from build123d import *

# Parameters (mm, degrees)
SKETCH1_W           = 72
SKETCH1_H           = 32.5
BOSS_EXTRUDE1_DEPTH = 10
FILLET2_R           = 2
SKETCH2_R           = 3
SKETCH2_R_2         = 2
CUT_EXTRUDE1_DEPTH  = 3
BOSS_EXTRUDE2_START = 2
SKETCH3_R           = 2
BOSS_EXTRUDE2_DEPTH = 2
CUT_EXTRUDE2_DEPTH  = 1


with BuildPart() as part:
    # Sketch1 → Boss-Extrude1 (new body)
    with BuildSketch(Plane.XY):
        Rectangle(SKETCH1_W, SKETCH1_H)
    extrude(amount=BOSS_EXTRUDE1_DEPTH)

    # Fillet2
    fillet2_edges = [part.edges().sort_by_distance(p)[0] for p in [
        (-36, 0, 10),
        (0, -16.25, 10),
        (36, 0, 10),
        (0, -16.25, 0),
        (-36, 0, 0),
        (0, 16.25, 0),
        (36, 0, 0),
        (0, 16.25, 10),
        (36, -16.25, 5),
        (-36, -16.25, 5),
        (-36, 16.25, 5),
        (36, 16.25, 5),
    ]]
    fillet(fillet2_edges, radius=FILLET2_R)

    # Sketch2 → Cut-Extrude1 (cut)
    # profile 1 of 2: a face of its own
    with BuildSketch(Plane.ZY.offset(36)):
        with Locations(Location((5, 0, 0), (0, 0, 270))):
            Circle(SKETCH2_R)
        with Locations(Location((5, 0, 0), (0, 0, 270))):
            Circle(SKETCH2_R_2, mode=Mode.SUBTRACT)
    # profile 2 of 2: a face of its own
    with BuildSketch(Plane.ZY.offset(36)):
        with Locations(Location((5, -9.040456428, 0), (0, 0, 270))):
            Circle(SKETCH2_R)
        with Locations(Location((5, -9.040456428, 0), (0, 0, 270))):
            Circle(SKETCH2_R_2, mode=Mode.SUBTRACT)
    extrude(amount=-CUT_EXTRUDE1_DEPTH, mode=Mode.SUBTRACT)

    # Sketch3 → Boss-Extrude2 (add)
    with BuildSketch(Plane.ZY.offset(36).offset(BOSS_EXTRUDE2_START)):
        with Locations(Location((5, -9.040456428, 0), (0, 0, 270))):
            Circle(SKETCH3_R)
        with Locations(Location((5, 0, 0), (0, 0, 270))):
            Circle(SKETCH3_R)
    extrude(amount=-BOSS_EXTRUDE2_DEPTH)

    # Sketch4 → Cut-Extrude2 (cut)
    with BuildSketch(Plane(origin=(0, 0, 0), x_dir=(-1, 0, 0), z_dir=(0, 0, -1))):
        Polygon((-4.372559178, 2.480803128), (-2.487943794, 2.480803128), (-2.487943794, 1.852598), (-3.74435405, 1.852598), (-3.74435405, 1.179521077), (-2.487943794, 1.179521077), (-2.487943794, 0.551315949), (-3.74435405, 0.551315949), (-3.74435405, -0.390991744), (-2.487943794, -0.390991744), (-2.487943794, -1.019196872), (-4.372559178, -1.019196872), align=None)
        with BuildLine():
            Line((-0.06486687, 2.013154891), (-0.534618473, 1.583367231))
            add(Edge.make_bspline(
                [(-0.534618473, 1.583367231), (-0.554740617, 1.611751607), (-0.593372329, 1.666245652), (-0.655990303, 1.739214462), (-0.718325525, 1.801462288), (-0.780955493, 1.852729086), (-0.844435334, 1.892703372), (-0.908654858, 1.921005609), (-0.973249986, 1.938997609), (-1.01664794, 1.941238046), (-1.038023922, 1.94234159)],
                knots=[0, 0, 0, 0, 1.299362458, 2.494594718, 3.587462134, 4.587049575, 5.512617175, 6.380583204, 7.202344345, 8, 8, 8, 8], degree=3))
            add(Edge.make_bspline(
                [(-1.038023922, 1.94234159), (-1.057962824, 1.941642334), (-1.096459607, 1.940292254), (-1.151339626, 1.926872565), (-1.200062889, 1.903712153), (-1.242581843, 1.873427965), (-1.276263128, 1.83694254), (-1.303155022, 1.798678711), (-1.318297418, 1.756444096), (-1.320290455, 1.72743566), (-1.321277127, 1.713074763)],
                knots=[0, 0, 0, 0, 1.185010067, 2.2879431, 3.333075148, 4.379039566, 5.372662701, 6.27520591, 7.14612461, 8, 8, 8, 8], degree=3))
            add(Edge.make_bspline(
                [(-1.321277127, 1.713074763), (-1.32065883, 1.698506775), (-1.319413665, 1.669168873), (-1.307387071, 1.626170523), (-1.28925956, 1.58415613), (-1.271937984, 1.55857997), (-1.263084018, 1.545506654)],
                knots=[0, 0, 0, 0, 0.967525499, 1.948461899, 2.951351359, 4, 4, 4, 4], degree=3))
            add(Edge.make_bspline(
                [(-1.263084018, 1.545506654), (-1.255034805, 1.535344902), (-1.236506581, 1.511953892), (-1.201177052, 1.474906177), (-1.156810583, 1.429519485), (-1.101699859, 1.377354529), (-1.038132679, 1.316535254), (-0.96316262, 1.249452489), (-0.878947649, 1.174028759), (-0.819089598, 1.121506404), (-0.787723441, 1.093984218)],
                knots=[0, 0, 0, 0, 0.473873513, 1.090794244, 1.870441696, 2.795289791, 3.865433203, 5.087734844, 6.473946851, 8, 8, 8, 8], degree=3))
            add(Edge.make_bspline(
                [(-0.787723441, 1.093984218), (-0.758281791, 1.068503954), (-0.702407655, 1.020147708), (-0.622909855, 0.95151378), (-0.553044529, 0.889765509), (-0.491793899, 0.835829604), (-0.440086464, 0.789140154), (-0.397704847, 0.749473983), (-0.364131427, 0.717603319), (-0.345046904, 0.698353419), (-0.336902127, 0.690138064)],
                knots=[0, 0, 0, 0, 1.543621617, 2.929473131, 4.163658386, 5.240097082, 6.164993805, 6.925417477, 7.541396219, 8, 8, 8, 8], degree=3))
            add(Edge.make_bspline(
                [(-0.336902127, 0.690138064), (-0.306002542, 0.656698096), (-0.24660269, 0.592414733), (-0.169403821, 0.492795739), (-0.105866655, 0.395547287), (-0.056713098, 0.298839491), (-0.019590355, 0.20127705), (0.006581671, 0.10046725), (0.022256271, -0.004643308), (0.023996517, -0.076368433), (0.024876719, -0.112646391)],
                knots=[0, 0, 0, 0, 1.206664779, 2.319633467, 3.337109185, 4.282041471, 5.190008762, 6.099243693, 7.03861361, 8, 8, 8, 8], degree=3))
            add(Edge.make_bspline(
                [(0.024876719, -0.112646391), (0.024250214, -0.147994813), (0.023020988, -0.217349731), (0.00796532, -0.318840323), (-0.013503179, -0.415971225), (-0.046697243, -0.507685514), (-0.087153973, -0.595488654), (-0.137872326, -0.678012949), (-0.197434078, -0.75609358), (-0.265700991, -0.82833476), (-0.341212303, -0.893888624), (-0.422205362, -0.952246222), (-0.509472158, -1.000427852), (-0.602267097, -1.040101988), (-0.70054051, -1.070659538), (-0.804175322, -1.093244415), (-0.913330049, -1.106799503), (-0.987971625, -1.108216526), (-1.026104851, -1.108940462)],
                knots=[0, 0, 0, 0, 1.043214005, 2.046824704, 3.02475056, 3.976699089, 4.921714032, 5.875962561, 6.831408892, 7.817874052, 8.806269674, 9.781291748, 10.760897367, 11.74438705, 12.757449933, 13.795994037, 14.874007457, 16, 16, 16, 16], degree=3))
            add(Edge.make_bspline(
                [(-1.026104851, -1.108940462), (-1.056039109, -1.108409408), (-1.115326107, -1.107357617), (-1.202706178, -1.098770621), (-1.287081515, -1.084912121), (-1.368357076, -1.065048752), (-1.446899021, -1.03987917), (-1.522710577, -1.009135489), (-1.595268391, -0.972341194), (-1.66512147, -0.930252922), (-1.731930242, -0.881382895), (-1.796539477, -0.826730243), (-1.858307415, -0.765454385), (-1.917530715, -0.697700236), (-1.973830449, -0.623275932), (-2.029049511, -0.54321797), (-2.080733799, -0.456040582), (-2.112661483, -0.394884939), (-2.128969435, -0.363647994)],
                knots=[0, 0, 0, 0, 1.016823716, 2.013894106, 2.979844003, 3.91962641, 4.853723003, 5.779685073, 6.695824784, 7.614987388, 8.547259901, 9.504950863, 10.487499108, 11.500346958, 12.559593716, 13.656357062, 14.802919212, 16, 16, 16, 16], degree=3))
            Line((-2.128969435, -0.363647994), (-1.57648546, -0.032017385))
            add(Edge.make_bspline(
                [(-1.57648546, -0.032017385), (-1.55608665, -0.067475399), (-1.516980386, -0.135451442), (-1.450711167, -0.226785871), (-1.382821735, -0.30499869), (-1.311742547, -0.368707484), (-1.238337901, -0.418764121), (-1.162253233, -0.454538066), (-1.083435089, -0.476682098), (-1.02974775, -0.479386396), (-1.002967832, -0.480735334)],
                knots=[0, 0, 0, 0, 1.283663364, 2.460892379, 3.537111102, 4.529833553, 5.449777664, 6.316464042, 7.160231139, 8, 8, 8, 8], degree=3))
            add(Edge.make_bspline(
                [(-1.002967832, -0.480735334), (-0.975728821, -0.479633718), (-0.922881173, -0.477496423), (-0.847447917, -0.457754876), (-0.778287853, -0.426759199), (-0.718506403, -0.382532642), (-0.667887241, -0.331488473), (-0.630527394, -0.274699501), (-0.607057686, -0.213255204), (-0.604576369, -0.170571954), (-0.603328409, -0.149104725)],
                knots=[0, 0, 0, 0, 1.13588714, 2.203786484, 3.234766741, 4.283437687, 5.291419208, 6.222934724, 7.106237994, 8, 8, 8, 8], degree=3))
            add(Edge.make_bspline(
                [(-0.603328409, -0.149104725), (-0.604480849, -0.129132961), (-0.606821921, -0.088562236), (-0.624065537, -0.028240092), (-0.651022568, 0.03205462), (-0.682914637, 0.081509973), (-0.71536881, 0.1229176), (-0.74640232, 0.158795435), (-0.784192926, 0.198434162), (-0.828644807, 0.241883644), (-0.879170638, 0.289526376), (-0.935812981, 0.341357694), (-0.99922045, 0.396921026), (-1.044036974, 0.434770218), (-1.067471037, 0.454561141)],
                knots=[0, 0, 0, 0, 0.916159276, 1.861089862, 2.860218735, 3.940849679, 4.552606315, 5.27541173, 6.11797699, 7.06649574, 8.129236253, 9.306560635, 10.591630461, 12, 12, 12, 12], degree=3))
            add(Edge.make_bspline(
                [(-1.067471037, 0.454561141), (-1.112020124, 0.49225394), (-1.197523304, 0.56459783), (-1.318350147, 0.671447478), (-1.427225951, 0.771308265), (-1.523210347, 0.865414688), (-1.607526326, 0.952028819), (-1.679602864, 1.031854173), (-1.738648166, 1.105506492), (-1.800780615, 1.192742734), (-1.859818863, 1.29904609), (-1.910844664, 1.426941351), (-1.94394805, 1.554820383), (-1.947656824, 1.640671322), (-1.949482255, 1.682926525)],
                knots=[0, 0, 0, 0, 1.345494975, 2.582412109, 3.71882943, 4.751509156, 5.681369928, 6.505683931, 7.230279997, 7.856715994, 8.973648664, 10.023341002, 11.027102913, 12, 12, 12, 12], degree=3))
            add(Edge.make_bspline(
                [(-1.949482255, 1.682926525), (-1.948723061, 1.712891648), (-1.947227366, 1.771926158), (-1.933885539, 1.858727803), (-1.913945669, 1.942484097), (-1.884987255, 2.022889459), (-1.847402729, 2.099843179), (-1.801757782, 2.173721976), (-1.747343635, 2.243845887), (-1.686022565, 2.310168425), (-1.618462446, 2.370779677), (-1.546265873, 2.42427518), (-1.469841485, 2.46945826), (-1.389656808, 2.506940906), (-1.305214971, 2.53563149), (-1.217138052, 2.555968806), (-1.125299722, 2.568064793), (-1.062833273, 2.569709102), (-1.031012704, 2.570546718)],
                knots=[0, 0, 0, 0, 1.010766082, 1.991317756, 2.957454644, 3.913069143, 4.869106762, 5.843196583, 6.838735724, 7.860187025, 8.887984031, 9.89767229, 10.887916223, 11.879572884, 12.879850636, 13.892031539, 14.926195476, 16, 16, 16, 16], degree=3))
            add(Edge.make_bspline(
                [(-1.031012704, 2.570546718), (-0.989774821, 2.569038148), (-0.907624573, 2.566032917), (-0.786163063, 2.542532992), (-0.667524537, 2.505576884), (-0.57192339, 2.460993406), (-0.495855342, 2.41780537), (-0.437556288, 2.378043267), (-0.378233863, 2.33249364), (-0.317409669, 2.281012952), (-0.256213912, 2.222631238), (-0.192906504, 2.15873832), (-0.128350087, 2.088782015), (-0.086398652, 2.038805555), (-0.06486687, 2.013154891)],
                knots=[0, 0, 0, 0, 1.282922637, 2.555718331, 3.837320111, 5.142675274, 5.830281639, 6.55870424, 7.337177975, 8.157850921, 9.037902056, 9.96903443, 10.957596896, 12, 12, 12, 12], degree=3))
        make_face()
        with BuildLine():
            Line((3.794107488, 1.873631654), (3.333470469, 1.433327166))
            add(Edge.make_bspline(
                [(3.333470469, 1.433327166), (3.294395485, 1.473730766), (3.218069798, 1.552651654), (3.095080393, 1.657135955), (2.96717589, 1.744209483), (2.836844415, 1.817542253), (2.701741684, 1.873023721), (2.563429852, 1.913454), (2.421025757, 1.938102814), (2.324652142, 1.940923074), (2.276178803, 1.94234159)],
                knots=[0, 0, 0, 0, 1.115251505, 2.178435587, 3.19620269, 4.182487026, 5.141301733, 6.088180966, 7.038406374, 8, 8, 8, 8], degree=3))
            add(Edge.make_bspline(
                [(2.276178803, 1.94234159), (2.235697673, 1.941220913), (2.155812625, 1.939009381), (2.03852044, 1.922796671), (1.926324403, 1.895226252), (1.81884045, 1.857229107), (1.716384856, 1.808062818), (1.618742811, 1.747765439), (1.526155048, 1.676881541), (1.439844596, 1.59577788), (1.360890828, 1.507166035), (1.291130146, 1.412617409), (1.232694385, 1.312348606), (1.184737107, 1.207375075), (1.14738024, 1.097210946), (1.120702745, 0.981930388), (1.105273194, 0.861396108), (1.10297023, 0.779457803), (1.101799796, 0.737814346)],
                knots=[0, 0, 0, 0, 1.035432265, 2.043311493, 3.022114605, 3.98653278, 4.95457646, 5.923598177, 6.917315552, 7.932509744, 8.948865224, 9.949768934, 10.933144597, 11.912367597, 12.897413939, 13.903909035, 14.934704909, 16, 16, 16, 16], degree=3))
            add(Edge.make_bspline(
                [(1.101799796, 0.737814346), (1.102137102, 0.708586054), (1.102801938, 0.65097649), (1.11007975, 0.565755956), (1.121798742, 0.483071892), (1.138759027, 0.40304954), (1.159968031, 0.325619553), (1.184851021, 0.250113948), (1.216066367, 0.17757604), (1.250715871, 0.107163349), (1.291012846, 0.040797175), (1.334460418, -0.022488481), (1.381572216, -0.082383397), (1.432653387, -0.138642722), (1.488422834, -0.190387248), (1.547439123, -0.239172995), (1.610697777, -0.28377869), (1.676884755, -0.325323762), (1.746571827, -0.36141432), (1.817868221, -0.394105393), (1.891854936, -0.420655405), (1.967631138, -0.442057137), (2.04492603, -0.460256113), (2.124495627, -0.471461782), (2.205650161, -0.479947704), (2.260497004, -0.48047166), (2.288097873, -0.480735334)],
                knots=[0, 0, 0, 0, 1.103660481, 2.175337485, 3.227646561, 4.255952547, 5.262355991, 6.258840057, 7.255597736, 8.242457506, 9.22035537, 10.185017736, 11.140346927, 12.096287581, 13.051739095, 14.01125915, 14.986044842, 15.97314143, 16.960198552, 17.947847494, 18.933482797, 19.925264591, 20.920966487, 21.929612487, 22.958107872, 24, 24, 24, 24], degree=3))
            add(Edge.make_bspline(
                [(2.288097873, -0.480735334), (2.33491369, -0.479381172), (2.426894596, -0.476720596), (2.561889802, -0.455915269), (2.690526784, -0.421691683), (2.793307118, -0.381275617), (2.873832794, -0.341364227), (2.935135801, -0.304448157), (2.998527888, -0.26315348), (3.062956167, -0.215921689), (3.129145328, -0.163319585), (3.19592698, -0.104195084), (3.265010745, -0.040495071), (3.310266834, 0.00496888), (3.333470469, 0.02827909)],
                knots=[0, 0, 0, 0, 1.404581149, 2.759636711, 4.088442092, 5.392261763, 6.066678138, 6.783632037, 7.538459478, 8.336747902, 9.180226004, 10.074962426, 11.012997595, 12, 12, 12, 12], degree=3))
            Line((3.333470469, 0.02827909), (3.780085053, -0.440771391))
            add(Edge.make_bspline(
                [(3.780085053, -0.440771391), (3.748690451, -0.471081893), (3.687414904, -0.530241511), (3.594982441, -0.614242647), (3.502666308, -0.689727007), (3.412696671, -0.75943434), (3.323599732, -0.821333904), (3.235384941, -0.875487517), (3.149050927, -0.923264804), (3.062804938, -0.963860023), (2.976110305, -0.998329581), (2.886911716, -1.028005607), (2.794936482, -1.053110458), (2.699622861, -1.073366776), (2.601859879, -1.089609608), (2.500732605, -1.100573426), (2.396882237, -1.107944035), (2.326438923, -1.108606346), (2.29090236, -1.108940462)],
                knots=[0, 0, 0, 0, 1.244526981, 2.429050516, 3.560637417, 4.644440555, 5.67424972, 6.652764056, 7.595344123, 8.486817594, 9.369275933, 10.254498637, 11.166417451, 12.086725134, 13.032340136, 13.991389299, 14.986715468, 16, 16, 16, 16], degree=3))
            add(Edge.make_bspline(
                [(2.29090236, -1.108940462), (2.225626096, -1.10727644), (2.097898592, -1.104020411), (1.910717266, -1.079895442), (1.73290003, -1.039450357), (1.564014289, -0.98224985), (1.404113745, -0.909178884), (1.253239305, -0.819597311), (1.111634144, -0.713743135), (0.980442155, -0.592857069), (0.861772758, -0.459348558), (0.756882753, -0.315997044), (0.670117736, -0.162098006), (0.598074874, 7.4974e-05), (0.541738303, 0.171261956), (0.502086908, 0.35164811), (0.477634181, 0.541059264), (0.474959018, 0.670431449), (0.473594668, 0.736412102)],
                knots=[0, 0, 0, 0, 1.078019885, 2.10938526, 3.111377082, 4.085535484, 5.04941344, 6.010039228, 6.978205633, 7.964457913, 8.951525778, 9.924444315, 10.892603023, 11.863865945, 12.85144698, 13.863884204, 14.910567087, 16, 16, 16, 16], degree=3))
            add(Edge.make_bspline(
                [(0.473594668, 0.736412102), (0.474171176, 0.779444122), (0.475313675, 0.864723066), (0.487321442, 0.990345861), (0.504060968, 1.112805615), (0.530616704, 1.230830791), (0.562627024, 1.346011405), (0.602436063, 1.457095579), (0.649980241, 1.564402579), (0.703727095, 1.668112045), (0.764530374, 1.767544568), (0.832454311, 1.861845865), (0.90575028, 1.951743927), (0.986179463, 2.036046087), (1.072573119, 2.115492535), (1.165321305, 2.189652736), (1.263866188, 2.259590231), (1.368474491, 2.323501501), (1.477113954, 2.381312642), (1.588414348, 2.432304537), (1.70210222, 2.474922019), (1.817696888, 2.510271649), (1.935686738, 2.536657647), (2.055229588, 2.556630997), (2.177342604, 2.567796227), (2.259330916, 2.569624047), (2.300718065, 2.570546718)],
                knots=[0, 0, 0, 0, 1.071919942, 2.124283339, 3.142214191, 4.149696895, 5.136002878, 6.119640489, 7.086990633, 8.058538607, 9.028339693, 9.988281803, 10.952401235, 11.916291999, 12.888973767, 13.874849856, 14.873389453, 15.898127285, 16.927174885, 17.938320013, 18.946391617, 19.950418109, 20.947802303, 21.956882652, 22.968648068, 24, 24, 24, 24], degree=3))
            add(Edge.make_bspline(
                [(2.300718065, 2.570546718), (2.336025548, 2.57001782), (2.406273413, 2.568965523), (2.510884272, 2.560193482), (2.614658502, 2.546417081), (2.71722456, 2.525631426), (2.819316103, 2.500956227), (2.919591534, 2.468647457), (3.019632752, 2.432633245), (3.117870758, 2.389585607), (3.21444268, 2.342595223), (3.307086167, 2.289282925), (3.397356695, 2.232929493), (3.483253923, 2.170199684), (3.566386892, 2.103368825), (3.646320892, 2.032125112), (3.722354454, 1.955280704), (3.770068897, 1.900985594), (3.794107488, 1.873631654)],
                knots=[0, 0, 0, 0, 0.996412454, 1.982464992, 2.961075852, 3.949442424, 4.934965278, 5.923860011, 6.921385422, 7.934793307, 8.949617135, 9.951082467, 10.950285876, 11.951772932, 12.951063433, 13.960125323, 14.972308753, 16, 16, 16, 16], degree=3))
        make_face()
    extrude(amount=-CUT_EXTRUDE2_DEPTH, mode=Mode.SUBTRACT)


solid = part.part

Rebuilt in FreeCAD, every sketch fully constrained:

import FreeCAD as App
import Part
import Sketcher
from FreeCAD import Vector
Q = App.Units.Quantity

doc = App.newDocument("Part")
params = doc.addObject("Spreadsheet::Sheet", "Params")
for row, (alias, value) in enumerate([
    ("sketch1_width", "72 mm"),
    ("sketch1_height", "32.5 mm"),
    ("pad1_length", "10 mm"),
    ("fillet_radius", "2 mm"),
    ("sketch2_diameter", "6 mm"),
    ("sketch2_diameter2", "4 mm"),
    ("pocket1_length", "3 mm"),
    ("sketch3_diameter", "4 mm"),
    ("pad2_length", "2 mm"),
    ("sketch4_height", "3.5 mm"),
    ("pocket2_length", "1 mm"),
], start=1):
    params.set(f"A{row}", alias)
    params.set(f"B{row}", "=" + value)
    params.setAlias(f"B{row}", alias)

body = doc.addObject("PartDesign::Body", "Body")

# Sketch on XY plane
sketch1 = doc.addObject("Sketcher::SketchObject", "Sketch")
body.addObject(sketch1)
sketch1.AttachmentSupport = (doc.XY_Plane, [""])
sketch1.MapMode = "FlatFace"
sketch1.addGeometry([
    Part.LineSegment(Vector(-36, 16.25, 0), Vector(-36, -16.25, 0)),
    Part.LineSegment(Vector(-36, -16.25, 0), Vector(36, -16.25, 0)),
    Part.LineSegment(Vector(36, -16.25, 0), Vector(36, 16.25, 0)),
    Part.LineSegment(Vector(36, 16.25, 0), Vector(-36, 16.25, 0)),
], False)
sketch1.addConstraint([
    Sketcher.Constraint("Coincident", 0, 2, 1, 1),
    Sketcher.Constraint("Coincident", 1, 2, 2, 1),
    Sketcher.Constraint("Coincident", 2, 2, 3, 1),
    Sketcher.Constraint("Coincident", 3, 2, 0, 1),
    Sketcher.Constraint("Vertical", 0),
    Sketcher.Constraint("Horizontal", 1),
    Sketcher.Constraint("Vertical", 2),
    Sketcher.Constraint("Horizontal", 3),
    Sketcher.Constraint("Symmetric", 0, 2, 2, 2, -1, 1),
    Sketcher.Constraint("DistanceX", 1, 1, 1, 2, Q("72 mm")),
    Sketcher.Constraint("DistanceY", 0, 2, 0, 1, Q("32.5 mm")),
])
sketch1.setExpression("Constraints[9]", "Params.sketch1_width")
sketch1.setExpression("Constraints[10]", "Params.sketch1_height")
pad1 = doc.addObject("PartDesign::Pad", "Pad")
body.addObject(pad1)
pad1.Profile = sketch1
pad1.setExpression("Length", "Params.pad1_length")
doc.recompute()

fillet = doc.addObject("PartDesign::Fillet", "Fillet")
body.addObject(fillet)
fillet.Base = (pad1, ["Edge1"])
fillet.UseAllEdges = True
fillet.setExpression("Radius", "Params.fillet_radius")

# Sketch on YZ plane
sketch2 = doc.addObject("Sketcher::SketchObject", "Sketch001")
body.addObject(sketch2)
sketch2.AttachmentSupport = (doc.YZ_Plane, [""])
sketch2.MapMode = "FlatFace"
sketch2.AttachmentOffset = App.Placement(Vector(0, 0, -36), App.Rotation())
sketch2.addGeometry([
    Part.Circle(Vector(0, 5, 0), Vector(0, 0, 1), 3),
    Part.Circle(Vector(0, 5, 0), Vector(0, 0, 1), 2),
    Part.Circle(Vector(-9.040456, 5, 0), Vector(0, 0, 1), 3),
    Part.Circle(Vector(-9.040456, 5, 0), Vector(0, 0, 1), 2),
], False)
sketch2.addConstraint([
    Sketcher.Constraint("Coincident", 1, 3, 0, 3),
    Sketcher.Constraint("Coincident", 3, 3, 2, 3),
    Sketcher.Constraint("Equal", 0, 2),
    Sketcher.Constraint("Equal", 1, 3),
    Sketcher.Constraint("PointOnObject", 0, 3, -2),
    Sketcher.Constraint("Horizontal", 1, 3, 2, 3),
    Sketcher.Constraint("Diameter", 0, Q("6 mm")),
    Sketcher.Constraint("Diameter", 1, Q("4 mm")),
    Sketcher.Constraint("DistanceY", -1, 1, 0, 3, Q("5 mm")),
    Sketcher.Constraint("DistanceX", 2, 3, -1, 1, Q("9.040456 mm")),
])
sketch2.setExpression("Constraints[6]", "Params.sketch2_diameter")
sketch2.setExpression("Constraints[7]", "Params.sketch2_diameter2")
pocket1 = doc.addObject("PartDesign::Pocket", "Pocket")
body.addObject(pocket1)
pocket1.Profile = sketch2
pocket1.setExpression("Length", "Params.pocket1_length")
pocket1.Reversed = True

# Sketch on YZ plane
sketch3 = doc.addObject("Sketcher::SketchObject", "Sketch002")
body.addObject(sketch3)
sketch3.AttachmentSupport = (doc.YZ_Plane, [""])
sketch3.MapMode = "FlatFace"
sketch3.AttachmentOffset = App.Placement(Vector(0, 0, -38), App.Rotation())
sketch3.addGeometry([
    Part.Circle(Vector(-9.040456, 5, 0), Vector(0, 0, 1), 2),
    Part.Circle(Vector(0, 5, 0), Vector(0, 0, 1), 2),
], False)
sketch3.addConstraint([
    Sketcher.Constraint("Equal", 0, 1),
    Sketcher.Constraint("PointOnObject", 1, 3, -2),
    Sketcher.Constraint("Horizontal", 0, 3, 1, 3),
    Sketcher.Constraint("Diameter", 0, Q("4 mm")),
    Sketcher.Constraint("DistanceY", -1, 1, 0, 3, Q("5 mm")),
    Sketcher.Constraint("DistanceX", 0, 3, -1, 1, Q("9.040456 mm")),
])
sketch3.setExpression("Constraints[3]", "Params.sketch3_diameter")
pad2 = doc.addObject("PartDesign::Pad", "Pad001")
body.addObject(pad2)
pad2.Profile = sketch3
pad2.setExpression("Length", "Params.pad2_length")

# Sketch on XY plane
sketch4 = doc.addObject("Sketcher::SketchObject", "Sketch003")
body.addObject(sketch4)
sketch4.AttachmentSupport = (doc.XY_Plane, [""])
sketch4.MapMode = "FlatFace"
sketch4.addGeometry([
    Part.LineSegment(Vector(2.487944, 2.480803, 0), Vector(4.372559, 2.480803, 0)),  # 0
    Part.LineSegment(Vector(4.372559, 2.480803, 0), Vector(4.372559, -1.019197, 0)),  # 1
    Part.LineSegment(Vector(4.372559, -1.019197, 0), Vector(2.487944, -1.019197, 0)),  # 2
    Part.LineSegment(Vector(2.487944, -1.019197, 0), Vector(2.487944, -0.390992, 0)),  # 3
    Part.LineSegment(Vector(2.487944, -0.390992, 0), Vector(3.744354, -0.390992, 0)),  # 4
    Part.LineSegment(Vector(3.744354, -0.390992, 0), Vector(3.744354, 0.551316, 0)),  # 5
    Part.LineSegment(Vector(3.744354, 0.551316, 0), Vector(2.487944, 0.551316, 0)),  # 6
    Part.LineSegment(Vector(2.487944, 0.551316, 0), Vector(2.487944, 1.179521, 0)),  # 7
    Part.LineSegment(Vector(2.487944, 1.179521, 0), Vector(3.744354, 1.179521, 0)),  # 8
    Part.LineSegment(Vector(3.744354, 1.179521, 0), Vector(3.744354, 1.852598, 0)),  # 9
    Part.LineSegment(Vector(3.744354, 1.852598, 0), Vector(2.487944, 1.852598, 0)),  # 10
    Part.LineSegment(Vector(2.487944, 1.852598, 0), Vector(2.487944, 2.480803, 0)),  # 11
    Part.LineSegment(Vector(0.534618, 1.583367, 0), Vector(0.064867, 2.013155, 0)),  # 12
    Part.BSplineCurve([Vector(1.031013, 2.570547, 0), Vector(0.989775, 2.569038, 0), Vector(0.907625, 2.566033, 0), Vector(0.786163, 2.542533, 0), Vector(0.667525, 2.505577, 0), Vector(0.571923, 2.460993, 0), Vector(0.495855, 2.417805, 0), Vector(0.437556, 2.378043, 0), Vector(0.378234, 2.332494, 0), Vector(0.31741, 2.281013, 0), Vector(0.256214, 2.222631, 0), Vector(0.192907, 2.158738, 0), Vector(0.12835, 2.088782, 0), Vector(0.086399, 2.038806, 0), Vector(0.064867, 2.013155, 0)], [4, 1, 1, 1, 1, 1, 1, 1, 1, 1, 1, 1, 4], [0, 1.282922637, 2.555718331, 3.837320111, 5.142675274, 5.830281639, 6.55870424, 7.337177975, 8.157850921, 9.037902056, 9.96903443, 10.957596896, 12], False, 3, [1, 1, 1, 1, 1, 1, 1, 1, 1, 1, 1, 1, 1, 1, 1], False),  # 13
    Part.BSplineCurve([Vector(1.949482, 1.682927, 0), Vector(1.948723, 1.712892, 0), Vector(1.947227, 1.771926, 0), Vector(1.933886, 1.858728, 0), Vector(1.913946, 1.942484, 0), Vector(1.884987, 2.022889, 0), Vector(1.847403, 2.099843, 0), Vector(1.801758, 2.173722, 0), Vector(1.747344, 2.243846, 0), Vector(1.686023, 2.310168, 0), Vector(1.618462, 2.37078, 0), Vector(1.546266, 2.424275, 0), Vector(1.469841, 2.469458, 0), Vector(1.389657, 2.506941, 0), Vector(1.305215, 2.535631, 0), Vector(1.217138, 2.555969, 0), Vector(1.1253, 2.568065, 0), Vector(1.062833, 2.569709, 0), Vector(1.031013, 2.570547, 0)], [4, 1, 1, 1, 1, 1, 1, 1, 1, 1, 1, 1, 1, 1, 1, 1, 4], [0, 1.010766082, 1.991317756, 2.957454644, 3.913069143, 4.869106762, 5.843196583, 6.838735724, 7.860187025, 8.887984031, 9.89767229, 10.887916223, 11.879572884, 12.879850636, 13.892031539, 14.926195476, 16], False, 3, [1, 1, 1, 1, 1, 1, 1, 1, 1, 1, 1, 1, 1, 1, 1, 1, 1, 1, 1], False),  # 14
    Part.BSplineCurve([Vector(1.067471, 0.454561, 0), Vector(1.11202, 0.492254, 0), Vector(1.197523, 0.564598, 0), Vector(1.31835, 0.671447, 0), Vector(1.427226, 0.771308, 0), Vector(1.52321, 0.865415, 0), Vector(1.607526, 0.952029, 0), Vector(1.679603, 1.031854, 0), Vector(1.738648, 1.105506, 0), Vector(1.800781, 1.192743, 0), Vector(1.859819, 1.299046, 0), Vector(1.910845, 1.426941, 0), Vector(1.943948, 1.55482, 0), Vector(1.947657, 1.640671, 0), Vector(1.949482, 1.682927, 0)], [4, 1, 1, 1, 1, 1, 1, 1, 1, 1, 1, 1, 4], [0, 1.345494975, 2.582412109, 3.71882943, 4.751509156, 5.681369928, 6.505683931, 7.230279997, 7.856715994, 8.973648664, 10.023341002, 11.027102913, 12], False, 3, [1, 1, 1, 1, 1, 1, 1, 1, 1, 1, 1, 1, 1, 1, 1], False),  # 15
    Part.BSplineCurve([Vector(0.603328, -0.149105, 0), Vector(0.604481, -0.129133, 0), Vector(0.606822, -0.088562, 0), Vector(0.624066, -0.02824, 0), Vector(0.651023, 0.032055, 0), Vector(0.682915, 0.08151, 0), Vector(0.715369, 0.122918, 0), Vector(0.746402, 0.158795, 0), Vector(0.784193, 0.198434, 0), Vector(0.828645, 0.241884, 0), Vector(0.879171, 0.289526, 0), Vector(0.935813, 0.341358, 0), Vector(0.99922, 0.396921, 0), Vector(1.044037, 0.43477, 0), Vector(1.067471, 0.454561, 0)], [4, 1, 1, 1, 1, 1, 1, 1, 1, 1, 1, 1, 4], [0, 0.916159276, 1.861089862, 2.860218735, 3.940849679, 4.552606315, 5.27541173, 6.11797699, 7.06649574, 8.129236253, 9.306560635, 10.591630461, 12], False, 3, [1, 1, 1, 1, 1, 1, 1, 1, 1, 1, 1, 1, 1, 1, 1], False),  # 16
    Part.BSplineCurve([Vector(1.002968, -0.480735, 0), Vector(0.975729, -0.479634, 0), Vector(0.922881, -0.477496, 0), Vector(0.847448, -0.457755, 0), Vector(0.778288, -0.426759, 0), Vector(0.718506, -0.382533, 0), Vector(0.667887, -0.331488, 0), Vector(0.630527, -0.2747, 0), Vector(0.607058, -0.213255, 0), Vector(0.604576, -0.170572, 0), Vector(0.603328, -0.149105, 0)], [4, 1, 1, 1, 1, 1, 1, 1, 4], [0, 1.13588714, 2.203786484, 3.234766741, 4.283437687, 5.291419208, 6.222934724, 7.106237994, 8], False, 3, [1, 1, 1, 1, 1, 1, 1, 1, 1, 1, 1], False),  # 17
    Part.BSplineCurve([Vector(1.576485, -0.032017, 0), Vector(1.556087, -0.067475, 0), Vector(1.51698, -0.135451, 0), Vector(1.450711, -0.226786, 0), Vector(1.382822, -0.304999, 0), Vector(1.311743, -0.368707, 0), Vector(1.238338, -0.418764, 0), Vector(1.162253, -0.454538, 0), Vector(1.083435, -0.476682, 0), Vector(1.029748, -0.479386, 0), Vector(1.002968, -0.480735, 0)], [4, 1, 1, 1, 1, 1, 1, 1, 4], [0, 1.283663364, 2.460892379, 3.537111102, 4.529833553, 5.449777664, 6.316464042, 7.160231139, 8], False, 3, [1, 1, 1, 1, 1, 1, 1, 1, 1, 1, 1], False),  # 18
    Part.LineSegment(Vector(1.576485, -0.032017, 0), Vector(2.128969, -0.363648, 0)),  # 19
    Part.BSplineCurve([Vector(1.026105, -1.10894, 0), Vector(1.056039, -1.108409, 0), Vector(1.115326, -1.107358, 0), Vector(1.202706, -1.098771, 0), Vector(1.287082, -1.084912, 0), Vector(1.368357, -1.065049, 0), Vector(1.446899, -1.039879, 0), Vector(1.522711, -1.009135, 0), Vector(1.595268, -0.972341, 0), Vector(1.665121, -0.930253, 0), Vector(1.73193, -0.881383, 0), Vector(1.796539, -0.82673, 0), Vector(1.858307, -0.765454, 0), Vector(1.917531, -0.6977, 0), Vector(1.97383, -0.623276, 0), Vector(2.02905, -0.543218, 0), Vector(2.080734, -0.456041, 0), Vector(2.112661, -0.394885, 0), Vector(2.128969, -0.363648, 0)], [4, 1, 1, 1, 1, 1, 1, 1, 1, 1, 1, 1, 1, 1, 1, 1, 4], [0, 1.016823716, 2.013894106, 2.979844003, 3.91962641, 4.853723003, 5.779685073, 6.695824784, 7.614987388, 8.547259901, 9.504950863, 10.487499108, 11.500346958, 12.559593716, 13.656357062, 14.802919212, 16], False, 3, [1, 1, 1, 1, 1, 1, 1, 1, 1, 1, 1, 1, 1, 1, 1, 1, 1, 1, 1], False),  # 20
    Part.BSplineCurve([Vector(-0.024877, -0.112646, 0), Vector(-0.02425, -0.147995, 0), Vector(-0.023021, -0.21735, 0), Vector(-0.007965, -0.31884, 0), Vector(0.013503, -0.415971, 0), Vector(0.046697, -0.507686, 0), Vector(0.087154, -0.595489, 0), Vector(0.137872, -0.678013, 0), Vector(0.197434, -0.756094, 0), Vector(0.265701, -0.828335, 0), Vector(0.341212, -0.893889, 0), Vector(0.422205, -0.952246, 0), Vector(0.509472, -1.000428, 0), Vector(0.602267, -1.040102, 0), Vector(0.700541, -1.07066, 0), Vector(0.804175, -1.093244, 0), Vector(0.91333, -1.1068, 0), Vector(0.987972, -1.108217, 0), Vector(1.026105, -1.10894, 0)], [4, 1, 1, 1, 1, 1, 1, 1, 1, 1, 1, 1, 1, 1, 1, 1, 4], [0, 1.043214005, 2.046824704, 3.02475056, 3.976699089, 4.921714032, 5.875962561, 6.831408892, 7.817874052, 8.806269674, 9.781291748, 10.760897367, 11.74438705, 12.757449933, 13.795994037, 14.874007457, 16], False, 3, [1, 1, 1, 1, 1, 1, 1, 1, 1, 1, 1, 1, 1, 1, 1, 1, 1, 1, 1], False),  # 21
    Part.BSplineCurve([Vector(0.336902, 0.690138, 0), Vector(0.306003, 0.656698, 0), Vector(0.246603, 0.592415, 0), Vector(0.169404, 0.492796, 0), Vector(0.105867, 0.395547, 0), Vector(0.056713, 0.298839, 0), Vector(0.01959, 0.201277, 0), Vector(-0.006582, 0.100467, 0), Vector(-0.022256, -0.004643, 0), Vector(-0.023997, -0.076368, 0), Vector(-0.024877, -0.112646, 0)], [4, 1, 1, 1, 1, 1, 1, 1, 4], [0, 1.206664779, 2.319633467, 3.337109185, 4.282041471, 5.190008762, 6.099243693, 7.03861361, 8], False, 3, [1, 1, 1, 1, 1, 1, 1, 1, 1, 1, 1], False),  # 22
    Part.BSplineCurve([Vector(0.787723, 1.093984, 0), Vector(0.758282, 1.068504, 0), Vector(0.702408, 1.020148, 0), Vector(0.62291, 0.951514, 0), Vector(0.553045, 0.889766, 0), Vector(0.491794, 0.83583, 0), Vector(0.440086, 0.78914, 0), Vector(0.397705, 0.749474, 0), Vector(0.364131, 0.717603, 0), Vector(0.345047, 0.698353, 0), Vector(0.336902, 0.690138, 0)], [4, 1, 1, 1, 1, 1, 1, 1, 4], [0, 1.543621617, 2.929473131, 4.163658386, 5.240097082, 6.164993805, 6.925417477, 7.541396219, 8], False, 3, [1, 1, 1, 1, 1, 1, 1, 1, 1, 1, 1], False),  # 23
    Part.BSplineCurve([Vector(1.263084, 1.545507, 0), Vector(1.255035, 1.535345, 0), Vector(1.236507, 1.511954, 0), Vector(1.201177, 1.474906, 0), Vector(1.156811, 1.429519, 0), Vector(1.1017, 1.377355, 0), Vector(1.038133, 1.316535, 0), Vector(0.963163, 1.249452, 0), Vector(0.878948, 1.174029, 0), Vector(0.81909, 1.121506, 0), Vector(0.787723, 1.093984, 0)], [4, 1, 1, 1, 1, 1, 1, 1, 4], [0, 0.473873513, 1.090794244, 1.870441696, 2.795289791, 3.865433203, 5.087734844, 6.473946851, 8], False, 3, [1, 1, 1, 1, 1, 1, 1, 1, 1, 1, 1], False),  # 24
    Part.BSplineCurve([Vector(1.321277, 1.713075, 0), Vector(1.320659, 1.698507, 0), Vector(1.319414, 1.669169, 0), Vector(1.307387, 1.626171, 0), Vector(1.28926, 1.584156, 0), Vector(1.271938, 1.55858, 0), Vector(1.263084, 1.545507, 0)], [4, 1, 1, 1, 4], [0, 0.967525499, 1.948461899, 2.951351359, 4], False, 3, [1, 1, 1, 1, 1, 1, 1], False),  # 25
    Part.BSplineCurve([Vector(1.038024, 1.942342, 0), Vector(1.057963, 1.941642, 0), Vector(1.09646, 1.940292, 0), Vector(1.15134, 1.926873, 0), Vector(1.200063, 1.903712, 0), Vector(1.242582, 1.873428, 0), Vector(1.276263, 1.836943, 0), Vector(1.303155, 1.798679, 0), Vector(1.318297, 1.756444, 0), Vector(1.32029, 1.727436, 0), Vector(1.321277, 1.713075, 0)], [4, 1, 1, 1, 1, 1, 1, 1, 4], [0, 1.185010067, 2.2879431, 3.333075148, 4.379039566, 5.372662701, 6.27520591, 7.14612461, 8], False, 3, [1, 1, 1, 1, 1, 1, 1, 1, 1, 1, 1], False),  # 26
    Part.BSplineCurve([Vector(0.534618, 1.583367, 0), Vector(0.554741, 1.611752, 0), Vector(0.593372, 1.666246, 0), Vector(0.65599, 1.739214, 0), Vector(0.718326, 1.801462, 0), Vector(0.780955, 1.852729, 0), Vector(0.844435, 1.892703, 0), Vector(0.908655, 1.921006, 0), Vector(0.97325, 1.938998, 0), Vector(1.016648, 1.941238, 0), Vector(1.038024, 1.942342, 0)], [4, 1, 1, 1, 1, 1, 1, 1, 4], [0, 1.299362458, 2.494594718, 3.587462134, 4.587049575, 5.512617175, 6.380583204, 7.202344345, 8], False, 3, [1, 1, 1, 1, 1, 1, 1, 1, 1, 1, 1], False),  # 27
    Part.LineSegment(Vector(-3.33347, 1.433327, 0), Vector(-3.794107, 1.873632, 0)),  # 28
    Part.BSplineCurve([Vector(-2.300718, 2.570547, 0), Vector(-2.336026, 2.570018, 0), Vector(-2.406273, 2.568966, 0), Vector(-2.510884, 2.560193, 0), Vector(-2.614659, 2.546417, 0), Vector(-2.717225, 2.525631, 0), Vector(-2.819316, 2.500956, 0), Vector(-2.919592, 2.468647, 0), Vector(-3.019633, 2.432633, 0), Vector(-3.117871, 2.389586, 0), Vector(-3.214443, 2.342595, 0), Vector(-3.307086, 2.289283, 0), Vector(-3.397357, 2.232929, 0), Vector(-3.483254, 2.1702, 0), Vector(-3.566387, 2.103369, 0), Vector(-3.646321, 2.032125, 0), Vector(-3.722354, 1.955281, 0), Vector(-3.770069, 1.900986, 0), Vector(-3.794107, 1.873632, 0)], [4, 1, 1, 1, 1, 1, 1, 1, 1, 1, 1, 1, 1, 1, 1, 1, 4], [0, 0.996412454, 1.982464992, 2.961075852, 3.949442424, 4.934965278, 5.923860011, 6.921385422, 7.934793307, 8.949617135, 9.951082467, 10.950285876, 11.951772932, 12.951063433, 13.960125323, 14.972308753, 16], False, 3, [1, 1, 1, 1, 1, 1, 1, 1, 1, 1, 1, 1, 1, 1, 1, 1, 1, 1, 1], False),  # 29
    Part.BSplineCurve([Vector(-0.473595, 0.736412, 0), Vector(-0.474171, 0.779444, 0), Vector(-0.475314, 0.864723, 0), Vector(-0.487321, 0.990346, 0), Vector(-0.504061, 1.112806, 0), Vector(-0.530617, 1.230831, 0), Vector(-0.562627, 1.346011, 0), Vector(-0.602436, 1.457096, 0), Vector(-0.64998, 1.564403, 0), Vector(-0.703727, 1.668112, 0), Vector(-0.76453, 1.767545, 0), Vector(-0.832454, 1.861846, 0), Vector(-0.90575, 1.951744, 0), Vector(-0.986179, 2.036046, 0), Vector(-1.072573, 2.115493, 0), Vector(-1.165321, 2.189653, 0), Vector(-1.263866, 2.25959, 0), Vector(-1.368474, 2.323502, 0), Vector(-1.477114, 2.381313, 0), Vector(-1.588414, 2.432305, 0), Vector(-1.702102, 2.474922, 0), Vector(-1.817697, 2.510272, 0), Vector(-1.935687, 2.536658, 0), Vector(-2.05523, 2.556631, 0), Vector(-2.177343, 2.567796, 0), Vector(-2.259331, 2.569624, 0), Vector(-2.300718, 2.570547, 0)], [4, 1, 1, 1, 1, 1, 1, 1, 1, 1, 1, 1, 1, 1, 1, 1, 1, 1, 1, 1, 1, 1, 1, 1, 4], [0, 1.071919942, 2.124283339, 3.142214191, 4.149696895, 5.136002878, 6.119640489, 7.086990633, 8.058538607, 9.028339693, 9.988281803, 10.952401235, 11.916291999, 12.888973767, 13.874849856, 14.873389453, 15.898127285, 16.927174885, 17.938320013, 18.946391617, 19.950418109, 20.947802303, 21.956882652, 22.968648068, 24], False, 3, [1, 1, 1, 1, 1, 1, 1, 1, 1, 1, 1, 1, 1, 1, 1, 1, 1, 1, 1, 1, 1, 1, 1, 1, 1, 1, 1], False),  # 30
    Part.BSplineCurve([Vector(-2.290902, -1.10894, 0), Vector(-2.225626, -1.107276, 0), Vector(-2.097899, -1.10402, 0), Vector(-1.910717, -1.079895, 0), Vector(-1.7329, -1.03945, 0), Vector(-1.564014, -0.98225, 0), Vector(-1.404114, -0.909179, 0), Vector(-1.253239, -0.819597, 0), Vector(-1.111634, -0.713743, 0), Vector(-0.980442, -0.592857, 0), Vector(-0.861773, -0.459349, 0), Vector(-0.756883, -0.315997, 0), Vector(-0.670118, -0.162098, 0), Vector(-0.598075, 0.000075, 0), Vector(-0.541738, 0.171262, 0), Vector(-0.502087, 0.351648, 0), Vector(-0.477634, 0.541059, 0), Vector(-0.474959, 0.670431, 0), Vector(-0.473595, 0.736412, 0)], [4, 1, 1, 1, 1, 1, 1, 1, 1, 1, 1, 1, 1, 1, 1, 1, 4], [0, 1.078019885, 2.10938526, 3.111377082, 4.085535484, 5.04941344, 6.010039228, 6.978205633, 7.964457913, 8.951525778, 9.924444315, 10.892603023, 11.863865945, 12.85144698, 13.863884204, 14.910567087, 16], False, 3, [1, 1, 1, 1, 1, 1, 1, 1, 1, 1, 1, 1, 1, 1, 1, 1, 1, 1, 1], False),  # 31
    Part.BSplineCurve([Vector(-3.780085, -0.440771, 0), Vector(-3.74869, -0.471082, 0), Vector(-3.687415, -0.530242, 0), Vector(-3.594982, -0.614243, 0), Vector(-3.502666, -0.689727, 0), Vector(-3.412697, -0.759434, 0), Vector(-3.3236, -0.821334, 0), Vector(-3.235385, -0.875488, 0), Vector(-3.149051, -0.923265, 0), Vector(-3.062805, -0.96386, 0), Vector(-2.97611, -0.99833, 0), Vector(-2.886912, -1.028006, 0), Vector(-2.794936, -1.05311, 0), Vector(-2.699623, -1.073367, 0), Vector(-2.60186, -1.08961, 0), Vector(-2.500733, -1.100573, 0), Vector(-2.396882, -1.107944, 0), Vector(-2.326439, -1.108606, 0), Vector(-2.290902, -1.10894, 0)], [4, 1, 1, 1, 1, 1, 1, 1, 1, 1, 1, 1, 1, 1, 1, 1, 4], [0, 1.244526981, 2.429050516, 3.560637417, 4.644440555, 5.67424972, 6.652764056, 7.595344123, 8.486817594, 9.369275933, 10.254498637, 11.166417451, 12.086725134, 13.032340136, 13.991389299, 14.986715468, 16], False, 3, [1, 1, 1, 1, 1, 1, 1, 1, 1, 1, 1, 1, 1, 1, 1, 1, 1, 1, 1], False),  # 32
    Part.LineSegment(Vector(-3.780085, -0.440771, 0), Vector(-3.33347, 0.028279, 0)),  # 33
    Part.BSplineCurve([Vector(-2.288098, -0.480735, 0), Vector(-2.334914, -0.479381, 0), Vector(-2.426895, -0.476721, 0), Vector(-2.56189, -0.455915, 0), Vector(-2.690527, -0.421692, 0), Vector(-2.793307, -0.381276, 0), Vector(-2.873833, -0.341364, 0), Vector(-2.935136, -0.304448, 0), Vector(-2.998528, -0.263153, 0), Vector(-3.062956, -0.215922, 0), Vector(-3.129145, -0.16332, 0), Vector(-3.195927, -0.104195, 0), Vector(-3.265011, -0.040495, 0), Vector(-3.310267, 0.004969, 0), Vector(-3.33347, 0.028279, 0)], [4, 1, 1, 1, 1, 1, 1, 1, 1, 1, 1, 1, 4], [0, 1.404581149, 2.759636711, 4.088442092, 5.392261763, 6.066678138, 6.783632037, 7.538459478, 8.336747902, 9.180226004, 10.074962426, 11.012997595, 12], False, 3, [1, 1, 1, 1, 1, 1, 1, 1, 1, 1, 1, 1, 1, 1, 1], False),  # 34
    Part.BSplineCurve([Vector(-1.1018, 0.737814, 0), Vector(-1.102137, 0.708586, 0), Vector(-1.102802, 0.650976, 0), Vector(-1.11008, 0.565756, 0), Vector(-1.121799, 0.483072, 0), Vector(-1.138759, 0.40305, 0), Vector(-1.159968, 0.32562, 0), Vector(-1.184851, 0.250114, 0), Vector(-1.216066, 0.177576, 0), Vector(-1.250716, 0.107163, 0), Vector(-1.291013, 0.040797, 0), Vector(-1.33446, -0.022488, 0), Vector(-1.381572, -0.082383, 0), Vector(-1.432653, -0.138643, 0), Vector(-1.488423, -0.190387, 0), Vector(-1.547439, -0.239173, 0), Vector(-1.610698, -0.283779, 0), Vector(-1.676885, -0.325324, 0), Vector(-1.746572, -0.361414, 0), Vector(-1.817868, -0.394105, 0), Vector(-1.891855, -0.420655, 0), Vector(-1.967631, -0.442057, 0), Vector(-2.044926, -0.460256, 0), Vector(-2.124496, -0.471462, 0), Vector(-2.20565, -0.479948, 0), Vector(-2.260497, -0.480472, 0), Vector(-2.288098, -0.480735, 0)], [4, 1, 1, 1, 1, 1, 1, 1, 1, 1, 1, 1, 1, 1, 1, 1, 1, 1, 1, 1, 1, 1, 1, 1, 4], [0, 1.103660481, 2.175337485, 3.227646561, 4.255952547, 5.262355991, 6.258840057, 7.255597736, 8.242457506, 9.22035537, 10.185017736, 11.140346927, 12.096287581, 13.051739095, 14.01125915, 14.986044842, 15.97314143, 16.960198552, 17.947847494, 18.933482797, 19.925264591, 20.920966487, 21.929612487, 22.958107872, 24], False, 3, [1, 1, 1, 1, 1, 1, 1, 1, 1, 1, 1, 1, 1, 1, 1, 1, 1, 1, 1, 1, 1, 1, 1, 1, 1, 1, 1], False),  # 35
    Part.BSplineCurve([Vector(-2.276179, 1.942342, 0), Vector(-2.235698, 1.941221, 0), Vector(-2.155813, 1.939009, 0), Vector(-2.03852, 1.922797, 0), Vector(-1.926324, 1.895226, 0), Vector(-1.81884, 1.857229, 0), Vector(-1.716385, 1.808063, 0), Vector(-1.618743, 1.747765, 0), Vector(-1.526155, 1.676882, 0), Vector(-1.439845, 1.595778, 0), Vector(-1.360891, 1.507166, 0), Vector(-1.29113, 1.412617, 0), Vector(-1.232694, 1.312349, 0), Vector(-1.184737, 1.207375, 0), Vector(-1.14738, 1.097211, 0), Vector(-1.120703, 0.98193, 0), Vector(-1.105273, 0.861396, 0), Vector(-1.10297, 0.779458, 0), Vector(-1.1018, 0.737814, 0)], [4, 1, 1, 1, 1, 1, 1, 1, 1, 1, 1, 1, 1, 1, 1, 1, 4], [0, 1.035432265, 2.043311493, 3.022114605, 3.98653278, 4.95457646, 5.923598177, 6.917315552, 7.932509744, 8.948865224, 9.949768934, 10.933144597, 11.912367597, 12.897413939, 13.903909035, 14.934704909, 16], False, 3, [1, 1, 1, 1, 1, 1, 1, 1, 1, 1, 1, 1, 1, 1, 1, 1, 1, 1, 1], False),  # 36
    Part.BSplineCurve([Vector(-3.33347, 1.433327, 0), Vector(-3.294395, 1.473731, 0), Vector(-3.21807, 1.552652, 0), Vector(-3.09508, 1.657136, 0), Vector(-2.967176, 1.744209, 0), Vector(-2.836844, 1.817542, 0), Vector(-2.701742, 1.873024, 0), Vector(-2.56343, 1.913454, 0), Vector(-2.421026, 1.938103, 0), Vector(-2.324652, 1.940923, 0), Vector(-2.276179, 1.942342, 0)], [4, 1, 1, 1, 1, 1, 1, 1, 4], [0, 1.115251505, 2.178435587, 3.19620269, 4.182487026, 5.141301733, 6.088180966, 7.038406374, 8], False, 3, [1, 1, 1, 1, 1, 1, 1, 1, 1, 1, 1], False),  # 37
], False)
sketch4.addConstraint([
    Sketcher.Constraint("Block", 13),
    Sketcher.Constraint("Block", 14),
    Sketcher.Constraint("Block", 15),
    Sketcher.Constraint("Block", 16),
    Sketcher.Constraint("Block", 17),
    Sketcher.Constraint("Block", 18),
    Sketcher.Constraint("Block", 20),
    Sketcher.Constraint("Block", 21),
    Sketcher.Constraint("Block", 22),
    Sketcher.Constraint("Block", 23),
    Sketcher.Constraint("Block", 24),
    Sketcher.Constraint("Block", 25),
    Sketcher.Constraint("Block", 26),
    Sketcher.Constraint("Block", 27),
    Sketcher.Constraint("Block", 29),
    Sketcher.Constraint("Block", 30),
    Sketcher.Constraint("Block", 31),
    Sketcher.Constraint("Block", 32),
    Sketcher.Constraint("Block", 34),
    Sketcher.Constraint("Block", 35),
    Sketcher.Constraint("Block", 36),
    Sketcher.Constraint("Block", 37),
    Sketcher.Constraint("Coincident", 0, 2, 1, 1),
    Sketcher.Constraint("Coincident", 1, 2, 2, 1),
    Sketcher.Constraint("Coincident", 2, 2, 3, 1),
    Sketcher.Constraint("Coincident", 3, 2, 4, 1),
    Sketcher.Constraint("Coincident", 4, 2, 5, 1),
    Sketcher.Constraint("Coincident", 5, 2, 6, 1),
    Sketcher.Constraint("Coincident", 6, 2, 7, 1),
    Sketcher.Constraint("Coincident", 7, 2, 8, 1),
    Sketcher.Constraint("Coincident", 8, 2, 9, 1),
    Sketcher.Constraint("Coincident", 9, 2, 10, 1),
    Sketcher.Constraint("Coincident", 10, 2, 11, 1),
    Sketcher.Constraint("Coincident", 11, 2, 0, 1),
    Sketcher.Constraint("Coincident", 12, 2, 13, 2),
    Sketcher.Constraint("Coincident", 18, 1, 19, 1),
    Sketcher.Constraint("Coincident", 19, 2, 20, 2),
    Sketcher.Constraint("Coincident", 27, 1, 12, 1),
    Sketcher.Constraint("Coincident", 28, 2, 29, 2),
    Sketcher.Constraint("Coincident", 32, 1, 33, 1),
    Sketcher.Constraint("Coincident", 33, 2, 34, 2),
    Sketcher.Constraint("Coincident", 37, 1, 28, 1),
    Sketcher.Constraint("Horizontal", 0),
    Sketcher.Constraint("Vertical", 1),
    Sketcher.Constraint("Horizontal", 2),
    Sketcher.Constraint("Vertical", 3),
    Sketcher.Constraint("Horizontal", 4),
    Sketcher.Constraint("Vertical", 5),
    Sketcher.Constraint("Horizontal", 6),
    Sketcher.Constraint("Vertical", 7),
    Sketcher.Constraint("Horizontal", 8),
    Sketcher.Constraint("Vertical", 9),
    Sketcher.Constraint("Horizontal", 10),
    Sketcher.Constraint("Vertical", 11),
    Sketcher.Constraint("Vertical", 3, 2, 6, 2),
    Sketcher.Constraint("Vertical", 5, 2, 8, 2),
    Sketcher.Constraint("Vertical", 7, 2, 10, 2),
    Sketcher.Constraint("Equal", 3, 7),
    Sketcher.Constraint("Equal", 7, 11),
    Sketcher.Constraint("DistanceY", 1, 2, 1, 1, Q("3.5 mm")),
    Sketcher.Constraint("DistanceX", 4, 1, 4, 2, Q("1.25641 mm")),
    Sketcher.Constraint("DistanceX", 0, 1, 0, 2, Q("1.884615 mm")),
    Sketcher.Constraint("DistanceY", 3, 1, 3, 2, Q("0.628205 mm")),
    Sketcher.Constraint("DistanceY", 5, 1, 5, 2, Q("0.942308 mm")),
    Sketcher.Constraint("DistanceX", -1, 1, 0, 2, Q("4.372559 mm")),
    Sketcher.Constraint("DistanceY", 3, 2, -1, 1, Q("0.390992 mm")),
])
sketch4.setExpression("Constraints[59]", "Params.sketch4_height")
pocket2 = doc.addObject("PartDesign::Pocket", "Pocket001")
body.addObject(pocket2)
pocket2.Profile = sketch4
pocket2.setExpression("Length", "Params.pocket2_length")
pocket2.Reversed = True

doc.recompute()
